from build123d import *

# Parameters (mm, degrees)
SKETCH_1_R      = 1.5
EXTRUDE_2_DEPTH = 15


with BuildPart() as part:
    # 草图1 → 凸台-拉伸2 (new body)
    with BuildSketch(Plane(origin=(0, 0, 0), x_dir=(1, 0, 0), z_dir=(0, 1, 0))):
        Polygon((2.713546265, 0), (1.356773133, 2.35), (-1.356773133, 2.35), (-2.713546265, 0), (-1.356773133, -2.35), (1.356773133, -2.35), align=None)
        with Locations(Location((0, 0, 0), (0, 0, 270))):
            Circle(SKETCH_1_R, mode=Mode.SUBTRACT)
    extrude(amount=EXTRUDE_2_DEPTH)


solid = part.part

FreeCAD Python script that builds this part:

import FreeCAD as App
import Part
import Sketcher

V = App.Vector
Q = App.Units.Quantity


def add_polygon(sketch, points):
    """Adds a closed chain of lines whose ends are joined by coincident constraints."""
    first, n = sketch.GeometryCount, len(points)
    for a, b in zip(points, points[1:] + points[:1]):
        sketch.addGeometry(Part.LineSegment(App.Vector(*a, 0), App.Vector(*b, 0)), False)
    for i in range(n):
        sketch.addConstraint(Sketcher.Constraint("Coincident", first + i, 2, first + (i + 1) % n, 1))

doc = App.newDocument("Part")
body = doc.addObject("PartDesign::Body", "Body")

# Sketch on XZ plane
sketch1 = doc.addObject("Sketcher::SketchObject", "Sketch")
body.addObject(sketch1)
sketch1.AttachmentSupport = (doc.XZ_Plane, [""])
sketch1.MapMode = "FlatFace"
add_polygon(sketch1, [(2.7, 0), (1.4, -2.4), (-1.4, -2.4), (-2.7, 0), (-1.4, 2.4), (1.4, 2.4)])  # lines 0-5
sketch1.addGeometry(Part.Circle(V(0, 0, 0), V(0, 0, 1), 1.5), False)  # 6
sketch1.addConstraint([
    Sketcher.Constraint("Horizontal", 1),
    Sketcher.Constraint("Horizontal", 4),
    Sketcher.Constraint("Coincident", 6, 3, -1, 1),
    Sketcher.Constraint("Symmetric", 0, 2, 3, 2, -1, 1),
    Sketcher.Constraint("Symmetric", 2, 2, 5, 2, -1, 1),
    Sketcher.Constraint("PointOnObject", 2, 2, -1),
    Sketcher.Constraint("Parallel", 2, 5),
    Sketcher.Constraint("Vertical", 1, 2, 3, 2),
    Sketcher.Constraint("Diameter", 6, 3.0),
    Sketcher.Constraint("Angle", 0, Q("-120 deg")),
    Sketcher.Constraint("DistanceY", 1, 2, 3, 2, 4.7),
    Sketcher.Constraint("DistanceX", 1, 2, 1, 1, 2.713546),
])
pad1 = doc.addObject("PartDesign::Pad", "Pad")
body.addObject(pad1)
pad1.Profile = sketch1
pad1.Length = 15
pad1.Reversed = True

doc.recompute()
